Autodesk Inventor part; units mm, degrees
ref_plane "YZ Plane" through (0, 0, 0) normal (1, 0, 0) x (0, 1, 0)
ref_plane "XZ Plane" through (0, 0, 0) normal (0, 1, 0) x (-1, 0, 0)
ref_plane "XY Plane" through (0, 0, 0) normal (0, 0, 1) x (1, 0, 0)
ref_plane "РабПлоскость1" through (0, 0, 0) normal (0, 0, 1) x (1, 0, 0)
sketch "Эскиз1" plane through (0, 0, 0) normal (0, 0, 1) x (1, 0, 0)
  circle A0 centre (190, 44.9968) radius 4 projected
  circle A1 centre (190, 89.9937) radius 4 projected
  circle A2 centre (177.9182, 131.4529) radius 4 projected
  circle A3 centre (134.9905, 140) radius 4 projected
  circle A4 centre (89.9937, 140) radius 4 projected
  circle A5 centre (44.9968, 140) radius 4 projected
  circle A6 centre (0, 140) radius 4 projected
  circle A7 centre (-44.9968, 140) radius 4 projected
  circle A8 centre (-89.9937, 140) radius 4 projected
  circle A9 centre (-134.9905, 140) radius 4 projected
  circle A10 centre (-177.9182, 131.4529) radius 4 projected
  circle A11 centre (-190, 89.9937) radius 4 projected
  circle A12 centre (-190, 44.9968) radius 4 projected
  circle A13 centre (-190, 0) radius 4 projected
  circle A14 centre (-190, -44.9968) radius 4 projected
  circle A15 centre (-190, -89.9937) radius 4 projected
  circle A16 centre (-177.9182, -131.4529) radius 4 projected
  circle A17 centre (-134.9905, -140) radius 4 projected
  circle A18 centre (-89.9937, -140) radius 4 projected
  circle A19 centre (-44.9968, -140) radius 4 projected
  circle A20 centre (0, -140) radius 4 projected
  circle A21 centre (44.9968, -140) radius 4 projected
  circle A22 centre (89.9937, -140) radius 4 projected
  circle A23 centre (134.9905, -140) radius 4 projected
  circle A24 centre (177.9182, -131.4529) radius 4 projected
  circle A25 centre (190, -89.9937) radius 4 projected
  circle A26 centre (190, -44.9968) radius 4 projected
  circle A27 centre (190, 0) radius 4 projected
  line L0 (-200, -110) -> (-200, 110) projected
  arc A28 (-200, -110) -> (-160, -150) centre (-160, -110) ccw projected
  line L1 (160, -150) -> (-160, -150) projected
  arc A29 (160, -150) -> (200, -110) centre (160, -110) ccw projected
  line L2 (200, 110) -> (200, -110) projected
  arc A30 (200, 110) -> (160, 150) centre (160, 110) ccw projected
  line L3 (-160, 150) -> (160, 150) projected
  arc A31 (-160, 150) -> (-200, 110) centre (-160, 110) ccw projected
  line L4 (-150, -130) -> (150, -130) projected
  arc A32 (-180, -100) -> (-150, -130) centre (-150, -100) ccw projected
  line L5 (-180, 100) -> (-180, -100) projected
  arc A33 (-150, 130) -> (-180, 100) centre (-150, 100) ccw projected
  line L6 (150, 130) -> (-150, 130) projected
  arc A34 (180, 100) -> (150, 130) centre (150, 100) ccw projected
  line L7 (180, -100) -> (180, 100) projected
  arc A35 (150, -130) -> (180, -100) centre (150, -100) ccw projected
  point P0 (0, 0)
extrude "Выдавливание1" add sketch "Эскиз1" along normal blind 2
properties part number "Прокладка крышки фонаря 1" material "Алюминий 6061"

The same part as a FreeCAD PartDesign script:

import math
import FreeCAD as App
import Part
import Sketcher
from FreeCAD import Vector
Q = App.Units.Quantity

doc = App.newDocument("Part")
body = doc.addObject("PartDesign::Body", "Body")

# Sketch on XY plane
sketch1 = doc.addObject("Sketcher::SketchObject", "Sketch")
body.addObject(sketch1)
sketch1.AttachmentSupport = (doc.XY_Plane, [""])
sketch1.MapMode = "FlatFace"
sketch1.addGeometry(Part.LineSegment(Vector(-200, 110, 0), Vector(-200, -110, 0)), False)
sketch1.addGeometry(Part.ArcOfCircle(Part.Circle(Vector(-160, -110, 0), Vector(0, 0, 1), 40), math.radians(180), math.radians(270)), False)
sketch1.addGeometry(Part.LineSegment(Vector(-160, -150, 0), Vector(160, -150, 0)), False)
sketch1.addGeometry(Part.ArcOfCircle(Part.Circle(Vector(160, -110, 0), Vector(0, 0, 1), 40), math.radians(-90), math.radians(0)), False)
sketch1.addGeometry(Part.LineSegment(Vector(200, -110, 0), Vector(200, 110, 0)), False)
sketch1.addGeometry(Part.ArcOfCircle(Part.Circle(Vector(160, 110, 0), Vector(0, 0, 1), 40), math.radians(0), math.radians(90)), False)
sketch1.addGeometry(Part.LineSegment(Vector(160, 150, 0), Vector(-160, 150, 0)), False)
sketch1.addGeometry(Part.ArcOfCircle(Part.Circle(Vector(-160, 110, 0), Vector(0, 0, 1), 40), math.radians(90), math.radians(180)), False)
sketch1.addGeometry(Part.Circle(Vector(-177.9, -131.5, 0), Vector(0, 0, 1), 4), False)
sketch1.addGeometry(Part.Circle(Vector(-135, -140, 0), Vector(0, 0, 1), 4), False)
sketch1.addGeometry(Part.Circle(Vector(-190, -90, 0), Vector(0, 0, 1), 4), False)
sketch1.addGeometry(Part.Circle(Vector(-90, -140, 0), Vector(0, 0, 1), 4), False)
sketch1.addGeometry(Part.Circle(Vector(-45, -140, 0), Vector(0, 0, 1), 4), False)
sketch1.addGeometry(Part.Circle(Vector(-190, -45, 0), Vector(0, 0, 1), 4), False)
sketch1.addGeometry(Part.Circle(Vector(0, -140, 0), Vector(0, 0, 1), 4), False)
sketch1.addGeometry(Part.Circle(Vector(45, -140, 0), Vector(0, 0, 1), 4), False)
sketch1.addGeometry(Part.Circle(Vector(90, -140, 0), Vector(0, 0, 1), 4), False)
sketch1.addGeometry(Part.Circle(Vector(135, -140, 0), Vector(0, 0, 1), 4), False)
sketch1.addGeometry(Part.Circle(Vector(177.9, -131.5, 0), Vector(0, 0, 1), 4), False)
sketch1.addGeometry(Part.Circle(Vector(190, -90, 0), Vector(0, 0, 1), 4), False)
sketch1.addGeometry(Part.Circle(Vector(190, -45, 0), Vector(0, 0, 1), 4), False)
sketch1.addGeometry(Part.Circle(Vector(-190, 0, 0), Vector(0, 0, 1), 4), False)
sketch1.addGeometry(Part.Circle(Vector(-190, 45, 0), Vector(0, 0, 1), 4), False)
sketch1.addGeometry(Part.Circle(Vector(-190, 90, 0), Vector(0, 0, 1), 4), False)
sketch1.addGeometry(Part.Circle(Vector(-177.9, 131.5, 0), Vector(0, 0, 1), 4), False)
sketch1.addGeometry(Part.Circle(Vector(-135, 140, 0), Vector(0, 0, 1), 4), False)
sketch1.addGeometry(Part.Circle(Vector(-90, 140, 0), Vector(0, 0, 1), 4), False)
sketch1.addGeometry(Part.Circle(Vector(-45, 140, 0), Vector(0, 0, 1), 4), False)
sketch1.addGeometry(Part.LineSegment(Vector(150, -130, 0), Vector(-150, -130, 0)), False)
sketch1.addGeometry(Part.ArcOfCircle(Part.Circle(Vector(-150, -100, 0), Vector(0, 0, 1), 30), math.radians(180), math.radians(270)), False)
sketch1.addGeometry(Part.LineSegment(Vector(-180, -100, 0), Vector(-180, 100, 0)), False)
sketch1.addGeometry(Part.ArcOfCircle(Part.Circle(Vector(-150, 100, 0), Vector(0, 0, 1), 30), math.radians(90), math.radians(180)), False)
sketch1.addGeometry(Part.LineSegment(Vector(-150, 130, 0), Vector(150, 130, 0)), False)
sketch1.addGeometry(Part.ArcOfCircle(Part.Circle(Vector(150, 100, 0), Vector(0, 0, 1), 30), math.radians(0), math.radians(90)), False)
sketch1.addGeometry(Part.LineSegment(Vector(180, 100, 0), Vector(180, -100, 0)), False)
sketch1.addGeometry(Part.ArcOfCircle(Part.Circle(Vector(150, -100, 0), Vector(0, 0, 1), 30), math.radians(-90), math.radians(0)), False)
sketch1.addGeometry(Part.Circle(Vector(190, 0, 0), Vector(0, 0, 1), 4), False)
sketch1.addGeometry(Part.Circle(Vector(190, 45, 0), Vector(0, 0, 1), 4), False)
sketch1.addGeometry(Part.Circle(Vector(0, 140, 0), Vector(0, 0, 1), 4), False)
sketch1.addGeometry(Part.Circle(Vector(45, 140, 0), Vector(0, 0, 1), 4), False)
sketch1.addGeometry(Part.Circle(Vector(90, 140, 0), Vector(0, 0, 1), 4), False)
sketch1.addGeometry(Part.Circle(Vector(190, 90, 0), Vector(0, 0, 1), 4), False)
sketch1.addGeometry(Part.Circle(Vector(135, 140, 0), Vector(0, 0, 1), 4), False)
sketch1.addGeometry(Part.Circle(Vector(177.9, 131.5, 0), Vector(0, 0, 1), 4), False)
sketch1.addConstraint(Sketcher.Constraint("Tangent", 0, 2, 1, 1))
sketch1.addConstraint(Sketcher.Constraint("Tangent", 1, 2, 2, 1))
sketch1.addConstraint(Sketcher.Constraint("Tangent", 2, 2, 3, 1))
sketch1.addConstraint(Sketcher.Constraint("Tangent", 3, 2, 4, 1))
sketch1.addConstraint(Sketcher.Constraint("Tangent", 4, 2, 5, 1))
sketch1.addConstraint(Sketcher.Constraint("Tangent", 5, 2, 6, 1))
sketch1.addConstraint(Sketcher.Constraint("Tangent", 6, 2, 7, 1))
sketch1.addConstraint(Sketcher.Constraint("Tangent", 7, 2, 0, 1))
sketch1.addConstraint(Sketcher.Constraint("Tangent", 28, 2, 29, 2))
sketch1.addConstraint(Sketcher.Constraint("Tangent", 29, 1, 30, 1))
sketch1.addConstraint(Sketcher.Constraint("Tangent", 30, 2, 31, 2))
sketch1.addConstraint(Sketcher.Constraint("Tangent", 31, 1, 32, 1))
sketch1.addConstraint(Sketcher.Constraint("Tangent", 32, 2, 33, 2))
sketch1.addConstraint(Sketcher.Constraint("Tangent", 33, 1, 34, 1))
sketch1.addConstraint(Sketcher.Constraint("Tangent", 34, 2, 35, 2))
sketch1.addConstraint(Sketcher.Constraint("Tangent", 35, 1, 28, 1))
sketch1.addConstraint(Sketcher.Constraint("Vertical", 0))
sketch1.addConstraint(Sketcher.Constraint("Horizontal", 2))
sketch1.addConstraint(Sketcher.Constraint("Vertical", 4))
sketch1.addConstraint(Sketcher.Constraint("Horizontal", 6))
sketch1.addConstraint(Sketcher.Constraint("Horizontal", 28))
sketch1.addConstraint(Sketcher.Constraint("Vertical", 30))
sketch1.addConstraint(Sketcher.Constraint("Horizontal", 32))
sketch1.addConstraint(Sketcher.Constraint("Vertical", 34))
sketch1.addConstraint(Sketcher.Constraint("Equal", 1, 3))
sketch1.addConstraint(Sketcher.Constraint("Equal", 3, 5))
sketch1.addConstraint(Sketcher.Constraint("Equal", 5, 7))
sketch1.addConstraint(Sketcher.Constraint("Equal", 8, 9))
sketch1.addConstraint(Sketcher.Constraint("Equal", 9, 10))
sketch1.addConstraint(Sketcher.Constraint("Equal", 10, 11))
sketch1.addConstraint(Sketcher.Constraint("Equal", 11, 12))
sketch1.addConstraint(Sketcher.Constraint("Equal", 12, 13))
sketch1.addConstraint(Sketcher.Constraint("Equal", 13, 14))
sketch1.addConstraint(Sketcher.Constraint("Equal", 14, 15))
sketch1.addConstraint(Sketcher.Constraint("Equal", 15, 16))
sketch1.addConstraint(Sketcher.Constraint("Equal", 16, 17))
sketch1.addConstraint(Sketcher.Constraint("Equal", 17, 18))
sketch1.addConstraint(Sketcher.Constraint("Equal", 18, 19))
sketch1.addConstraint(Sketcher.Constraint("Equal", 19, 20))
sketch1.addConstraint(Sketcher.Constraint("Equal", 20, 21))
sketch1.addConstraint(Sketcher.Constraint("Equal", 21, 22))
sketch1.addConstraint(Sketcher.Constraint("Equal", 22, 23))
sketch1.addConstraint(Sketcher.Constraint("Equal", 23, 24))
sketch1.addConstraint(Sketcher.Constraint("Equal", 24, 25))
sketch1.addConstraint(Sketcher.Constraint("Equal", 25, 26))
sketch1.addConstraint(Sketcher.Constraint("Equal", 26, 27))
sketch1.addConstraint(Sketcher.Constraint("Equal", 29, 31))
sketch1.addConstraint(Sketcher.Constraint("Equal", 31, 33))
sketch1.addConstraint(Sketcher.Constraint("Equal", 33, 35))
sketch1.addConstraint(Sketcher.Constraint("Equal", 27, 36))
sketch1.addConstraint(Sketcher.Constraint("Equal", 36, 37))
sketch1.addConstraint(Sketcher.Constraint("Equal", 37, 38))
sketch1.addConstraint(Sketcher.Constraint("Equal", 38, 39))
sketch1.addConstraint(Sketcher.Constraint("Equal", 39, 40))
sketch1.addConstraint(Sketcher.Constraint("Equal", 40, 41))
sketch1.addConstraint(Sketcher.Constraint("Equal", 41, 42))
sketch1.addConstraint(Sketcher.Constraint("Equal", 42, 43))
sketch1.addConstraint(Sketcher.Constraint("Symmetric", 1, 3, 5, 3, -1, 1))
sketch1.addConstraint(Sketcher.Constraint("Symmetric", 20, 3, 22, 3, -1, 1))
sketch1.addConstraint(Sketcher.Constraint("Symmetric", 19, 3, 23, 3, -1, 1))
sketch1.addConstraint(Sketcher.Constraint("Symmetric", 18, 3, 24, 3, -1, 1))
sketch1.addConstraint(Sketcher.Constraint("Symmetric", 17, 3, 25, 3, -1, 1))
sketch1.addConstraint(Sketcher.Constraint("Symmetric", 16, 3, 26, 3, -1, 1))
sketch1.addConstraint(Sketcher.Constraint("Symmetric", 15, 3, 27, 3, -1, 1))
sketch1.addConstraint(Sketcher.Constraint("Symmetric", 29, 3, 33, 3, -1, 1))
sketch1.addConstraint(Sketcher.Constraint("Symmetric", 21, 3, 36, 3, -1, 1))
sketch1.addConstraint(Sketcher.Constraint("Symmetric", 13, 3, 37, 3, -1, 1))
sketch1.addConstraint(Sketcher.Constraint("Symmetric", 14, 3, 38, 3, -1, 1))
sketch1.addConstraint(Sketcher.Constraint("Symmetric", 12, 3, 39, 3, -1, 1))
sketch1.addConstraint(Sketcher.Constraint("Symmetric", 11, 3, 40, 3, -1, 1))
sketch1.addConstraint(Sketcher.Constraint("Symmetric", 10, 3, 41, 3, -1, 1))
sketch1.addConstraint(Sketcher.Constraint("Symmetric", 9, 3, 42, 3, -1, 1))
sketch1.addConstraint(Sketcher.Constraint("Symmetric", 8, 3, 43, 3, -1, 1))
sketch1.addConstraint(Sketcher.Constraint("Symmetric", 12, 3, 15, 3, -2))
sketch1.addConstraint(Sketcher.Constraint("Symmetric", 11, 3, 16, 3, -2))
sketch1.addConstraint(Sketcher.Constraint("Symmetric", 9, 3, 17, 3, -2))
sketch1.addConstraint(Sketcher.Constraint("Symmetric", 8, 3, 18, 3, -2))
sketch1.addConstraint(Sketcher.Constraint("Symmetric", 10, 3, 19, 3, -2))
sketch1.addConstraint(Sketcher.Constraint("Symmetric", 13, 3, 20, 3, -2))
sketch1.addConstraint(Sketcher.Constraint("PointOnObject", 14, 3, -2))
sketch1.addConstraint(Sketcher.Constraint("PointOnObject", 21, 3, -1))
sketch1.addConstraint(Sketcher.Constraint("Horizontal", 9, 3, 11, 3))
sketch1.addConstraint(Sketcher.Constraint("Horizontal", 11, 3, 12, 3))
sketch1.addConstraint(Sketcher.Constraint("Horizontal", 12, 3, 14, 3))
sketch1.addConstraint(Sketcher.Constraint("Vertical", 10, 3, 13, 3))
sketch1.addConstraint(Sketcher.Constraint("Vertical", 13, 3, 21, 3))
sketch1.addConstraint(Sketcher.Constraint("Diameter", 8, Q("8 mm")))
sketch1.addConstraint(Sketcher.Constraint("Radius", 1, Q("40 mm")))
sketch1.addConstraint(Sketcher.Constraint("Radius", 29, Q("30 mm")))
sketch1.addConstraint(Sketcher.Constraint("DistanceX", 2, 1, 2, 2, Q("320 mm")))
sketch1.addConstraint(Sketcher.Constraint("DistanceX", 28, 2, 28, 1, Q("300 mm")))
sketch1.addConstraint(Sketcher.Constraint("DistanceY", 0, 2, 0, 1, Q("220 mm")))
sketch1.addConstraint(Sketcher.Constraint("DistanceY", 30, 1, 30, 2, Q("200 mm")))
sketch1.addConstraint(Sketcher.Constraint("DistanceY", 9, 3, -1, 1, Q("140 mm")))
sketch1.addConstraint(Sketcher.Constraint("DistanceX", 10, 3, -1, 1, Q("190 mm")))
sketch1.addConstraint(Sketcher.Constraint("DistanceY", 8, 3, -1, 1, Q("131.453 mm")))
sketch1.addConstraint(Sketcher.Constraint("DistanceX", 11, 3, 12, 3, Q("44.997 mm")))
sketch1.addConstraint(Sketcher.Constraint("DistanceY", 10, 3, 13, 3, Q("44.997 mm")))
sketch1.addConstraint(Sketcher.Constraint("DistanceY", 8, 3, 13, 3, Q("86.456 mm")))
sketch1.addConstraint(Sketcher.Constraint("DistanceX", 8, 3, -1, 1, Q("177.9182 mm")))
sketch1.addConstraint(Sketcher.Constraint("DistanceX", 9, 3, -1, 1, Q("134.9905 mm")))
sketch1.addConstraint(Sketcher.Constraint("DistanceX", 11, 3, -1, 1, Q("89.9937 mm")))
pad1 = doc.addObject("PartDesign::Pad", "Pad")
body.addObject(pad1)
pad1.Profile = sketch1
pad1.Length = 2

doc.recompute()
